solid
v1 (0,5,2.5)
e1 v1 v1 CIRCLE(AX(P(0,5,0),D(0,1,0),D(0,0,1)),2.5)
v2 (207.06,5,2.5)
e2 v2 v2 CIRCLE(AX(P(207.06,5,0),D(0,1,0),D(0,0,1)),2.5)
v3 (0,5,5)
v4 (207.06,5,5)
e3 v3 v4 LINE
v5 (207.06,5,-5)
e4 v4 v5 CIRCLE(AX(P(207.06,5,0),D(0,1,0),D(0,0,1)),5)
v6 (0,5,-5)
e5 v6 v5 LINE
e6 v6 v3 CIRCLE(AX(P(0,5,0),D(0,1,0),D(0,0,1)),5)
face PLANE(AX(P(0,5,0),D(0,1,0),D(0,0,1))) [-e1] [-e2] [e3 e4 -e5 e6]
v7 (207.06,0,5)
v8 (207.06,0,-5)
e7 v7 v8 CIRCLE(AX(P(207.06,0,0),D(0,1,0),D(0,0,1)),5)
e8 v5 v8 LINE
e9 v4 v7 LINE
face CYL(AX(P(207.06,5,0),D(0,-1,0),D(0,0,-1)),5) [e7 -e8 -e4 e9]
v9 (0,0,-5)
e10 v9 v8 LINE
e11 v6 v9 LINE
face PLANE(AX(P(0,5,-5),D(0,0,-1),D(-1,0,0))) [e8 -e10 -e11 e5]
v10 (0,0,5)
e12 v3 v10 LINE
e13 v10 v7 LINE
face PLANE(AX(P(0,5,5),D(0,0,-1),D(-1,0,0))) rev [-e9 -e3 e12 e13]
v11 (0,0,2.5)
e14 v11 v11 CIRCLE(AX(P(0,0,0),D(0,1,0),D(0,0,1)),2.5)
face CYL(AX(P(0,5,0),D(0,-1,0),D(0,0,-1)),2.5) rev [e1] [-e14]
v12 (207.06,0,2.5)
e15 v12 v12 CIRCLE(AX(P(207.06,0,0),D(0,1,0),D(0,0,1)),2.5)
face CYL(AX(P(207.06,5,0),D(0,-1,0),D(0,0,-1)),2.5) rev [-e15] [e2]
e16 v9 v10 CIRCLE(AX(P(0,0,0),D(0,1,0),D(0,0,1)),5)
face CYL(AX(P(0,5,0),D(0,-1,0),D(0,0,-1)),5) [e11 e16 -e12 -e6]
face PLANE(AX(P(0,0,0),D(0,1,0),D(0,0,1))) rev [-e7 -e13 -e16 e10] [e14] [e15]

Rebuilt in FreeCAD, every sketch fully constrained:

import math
import FreeCAD as App
import Part
import Sketcher
Q = App.Units.Quantity

doc = App.newDocument("Part")
body = doc.addObject("PartDesign::Body", "Body")

# Sketch on XZ plane
sketch1 = body.newObject("Sketcher::SketchObject", "Sketch")
sketch1.AttachmentSupport = (doc.getObject("XZ_Plane"), [""])
sketch1.MapMode = "FlatFace"
sketch1.addGeometry([
    Part.LineSegment(App.Vector(0, 5, 0), App.Vector(207.06, 5, 0)),  # 0
    Part.ArcOfCircle(Part.Circle(App.Vector(207.06, 0, 0), App.Vector(0, 0, 1), 5), math.radians(-90), math.radians(90)),  # 1
    Part.LineSegment(App.Vector(207.06, -5, 0), App.Vector(0, -5, 0)),  # 2
    Part.ArcOfCircle(Part.Circle(App.Vector(0, 0, 0), App.Vector(0, 0, 1), 5), math.radians(90), math.radians(270)),  # 3
    Part.Circle(App.Vector(0, 0, 0), App.Vector(0, 0, 1), 2.5),  # 4
    Part.Circle(App.Vector(207.06, 0, 0), App.Vector(0, 0, 1), 2.5),  # 5
], False)
sketch1.addConstraint([
    Sketcher.Constraint("Tangent", 0, 2, 1, 2),
    Sketcher.Constraint("Tangent", 1, 1, 2, 1),
    Sketcher.Constraint("Tangent", 2, 2, 3, 2),
    Sketcher.Constraint("Tangent", 3, 1, 0, 1),
    Sketcher.Constraint("Horizontal", 0),
    Sketcher.Constraint("Horizontal", 2),
    Sketcher.Constraint("Coincident", 3, 3, -1, 1),
    Sketcher.Constraint("Coincident", 4, 3, -1, 1),
    Sketcher.Constraint("Coincident", 5, 3, 1, 3),
    Sketcher.Constraint("Equal", 4, 5),
    Sketcher.Constraint("Diameter", 4, Q("5 mm")),
    Sketcher.Constraint("Radius", 1, Q("5 mm")),
    Sketcher.Constraint("DistanceX", 0, 1, 0, 2, Q("207.06 mm")),
])
pad1 = body.newObject("PartDesign::Pad", "Pad")
pad1.Profile = sketch1
pad1.Length = 5
pad1.Reversed = True

doc.recompute()
